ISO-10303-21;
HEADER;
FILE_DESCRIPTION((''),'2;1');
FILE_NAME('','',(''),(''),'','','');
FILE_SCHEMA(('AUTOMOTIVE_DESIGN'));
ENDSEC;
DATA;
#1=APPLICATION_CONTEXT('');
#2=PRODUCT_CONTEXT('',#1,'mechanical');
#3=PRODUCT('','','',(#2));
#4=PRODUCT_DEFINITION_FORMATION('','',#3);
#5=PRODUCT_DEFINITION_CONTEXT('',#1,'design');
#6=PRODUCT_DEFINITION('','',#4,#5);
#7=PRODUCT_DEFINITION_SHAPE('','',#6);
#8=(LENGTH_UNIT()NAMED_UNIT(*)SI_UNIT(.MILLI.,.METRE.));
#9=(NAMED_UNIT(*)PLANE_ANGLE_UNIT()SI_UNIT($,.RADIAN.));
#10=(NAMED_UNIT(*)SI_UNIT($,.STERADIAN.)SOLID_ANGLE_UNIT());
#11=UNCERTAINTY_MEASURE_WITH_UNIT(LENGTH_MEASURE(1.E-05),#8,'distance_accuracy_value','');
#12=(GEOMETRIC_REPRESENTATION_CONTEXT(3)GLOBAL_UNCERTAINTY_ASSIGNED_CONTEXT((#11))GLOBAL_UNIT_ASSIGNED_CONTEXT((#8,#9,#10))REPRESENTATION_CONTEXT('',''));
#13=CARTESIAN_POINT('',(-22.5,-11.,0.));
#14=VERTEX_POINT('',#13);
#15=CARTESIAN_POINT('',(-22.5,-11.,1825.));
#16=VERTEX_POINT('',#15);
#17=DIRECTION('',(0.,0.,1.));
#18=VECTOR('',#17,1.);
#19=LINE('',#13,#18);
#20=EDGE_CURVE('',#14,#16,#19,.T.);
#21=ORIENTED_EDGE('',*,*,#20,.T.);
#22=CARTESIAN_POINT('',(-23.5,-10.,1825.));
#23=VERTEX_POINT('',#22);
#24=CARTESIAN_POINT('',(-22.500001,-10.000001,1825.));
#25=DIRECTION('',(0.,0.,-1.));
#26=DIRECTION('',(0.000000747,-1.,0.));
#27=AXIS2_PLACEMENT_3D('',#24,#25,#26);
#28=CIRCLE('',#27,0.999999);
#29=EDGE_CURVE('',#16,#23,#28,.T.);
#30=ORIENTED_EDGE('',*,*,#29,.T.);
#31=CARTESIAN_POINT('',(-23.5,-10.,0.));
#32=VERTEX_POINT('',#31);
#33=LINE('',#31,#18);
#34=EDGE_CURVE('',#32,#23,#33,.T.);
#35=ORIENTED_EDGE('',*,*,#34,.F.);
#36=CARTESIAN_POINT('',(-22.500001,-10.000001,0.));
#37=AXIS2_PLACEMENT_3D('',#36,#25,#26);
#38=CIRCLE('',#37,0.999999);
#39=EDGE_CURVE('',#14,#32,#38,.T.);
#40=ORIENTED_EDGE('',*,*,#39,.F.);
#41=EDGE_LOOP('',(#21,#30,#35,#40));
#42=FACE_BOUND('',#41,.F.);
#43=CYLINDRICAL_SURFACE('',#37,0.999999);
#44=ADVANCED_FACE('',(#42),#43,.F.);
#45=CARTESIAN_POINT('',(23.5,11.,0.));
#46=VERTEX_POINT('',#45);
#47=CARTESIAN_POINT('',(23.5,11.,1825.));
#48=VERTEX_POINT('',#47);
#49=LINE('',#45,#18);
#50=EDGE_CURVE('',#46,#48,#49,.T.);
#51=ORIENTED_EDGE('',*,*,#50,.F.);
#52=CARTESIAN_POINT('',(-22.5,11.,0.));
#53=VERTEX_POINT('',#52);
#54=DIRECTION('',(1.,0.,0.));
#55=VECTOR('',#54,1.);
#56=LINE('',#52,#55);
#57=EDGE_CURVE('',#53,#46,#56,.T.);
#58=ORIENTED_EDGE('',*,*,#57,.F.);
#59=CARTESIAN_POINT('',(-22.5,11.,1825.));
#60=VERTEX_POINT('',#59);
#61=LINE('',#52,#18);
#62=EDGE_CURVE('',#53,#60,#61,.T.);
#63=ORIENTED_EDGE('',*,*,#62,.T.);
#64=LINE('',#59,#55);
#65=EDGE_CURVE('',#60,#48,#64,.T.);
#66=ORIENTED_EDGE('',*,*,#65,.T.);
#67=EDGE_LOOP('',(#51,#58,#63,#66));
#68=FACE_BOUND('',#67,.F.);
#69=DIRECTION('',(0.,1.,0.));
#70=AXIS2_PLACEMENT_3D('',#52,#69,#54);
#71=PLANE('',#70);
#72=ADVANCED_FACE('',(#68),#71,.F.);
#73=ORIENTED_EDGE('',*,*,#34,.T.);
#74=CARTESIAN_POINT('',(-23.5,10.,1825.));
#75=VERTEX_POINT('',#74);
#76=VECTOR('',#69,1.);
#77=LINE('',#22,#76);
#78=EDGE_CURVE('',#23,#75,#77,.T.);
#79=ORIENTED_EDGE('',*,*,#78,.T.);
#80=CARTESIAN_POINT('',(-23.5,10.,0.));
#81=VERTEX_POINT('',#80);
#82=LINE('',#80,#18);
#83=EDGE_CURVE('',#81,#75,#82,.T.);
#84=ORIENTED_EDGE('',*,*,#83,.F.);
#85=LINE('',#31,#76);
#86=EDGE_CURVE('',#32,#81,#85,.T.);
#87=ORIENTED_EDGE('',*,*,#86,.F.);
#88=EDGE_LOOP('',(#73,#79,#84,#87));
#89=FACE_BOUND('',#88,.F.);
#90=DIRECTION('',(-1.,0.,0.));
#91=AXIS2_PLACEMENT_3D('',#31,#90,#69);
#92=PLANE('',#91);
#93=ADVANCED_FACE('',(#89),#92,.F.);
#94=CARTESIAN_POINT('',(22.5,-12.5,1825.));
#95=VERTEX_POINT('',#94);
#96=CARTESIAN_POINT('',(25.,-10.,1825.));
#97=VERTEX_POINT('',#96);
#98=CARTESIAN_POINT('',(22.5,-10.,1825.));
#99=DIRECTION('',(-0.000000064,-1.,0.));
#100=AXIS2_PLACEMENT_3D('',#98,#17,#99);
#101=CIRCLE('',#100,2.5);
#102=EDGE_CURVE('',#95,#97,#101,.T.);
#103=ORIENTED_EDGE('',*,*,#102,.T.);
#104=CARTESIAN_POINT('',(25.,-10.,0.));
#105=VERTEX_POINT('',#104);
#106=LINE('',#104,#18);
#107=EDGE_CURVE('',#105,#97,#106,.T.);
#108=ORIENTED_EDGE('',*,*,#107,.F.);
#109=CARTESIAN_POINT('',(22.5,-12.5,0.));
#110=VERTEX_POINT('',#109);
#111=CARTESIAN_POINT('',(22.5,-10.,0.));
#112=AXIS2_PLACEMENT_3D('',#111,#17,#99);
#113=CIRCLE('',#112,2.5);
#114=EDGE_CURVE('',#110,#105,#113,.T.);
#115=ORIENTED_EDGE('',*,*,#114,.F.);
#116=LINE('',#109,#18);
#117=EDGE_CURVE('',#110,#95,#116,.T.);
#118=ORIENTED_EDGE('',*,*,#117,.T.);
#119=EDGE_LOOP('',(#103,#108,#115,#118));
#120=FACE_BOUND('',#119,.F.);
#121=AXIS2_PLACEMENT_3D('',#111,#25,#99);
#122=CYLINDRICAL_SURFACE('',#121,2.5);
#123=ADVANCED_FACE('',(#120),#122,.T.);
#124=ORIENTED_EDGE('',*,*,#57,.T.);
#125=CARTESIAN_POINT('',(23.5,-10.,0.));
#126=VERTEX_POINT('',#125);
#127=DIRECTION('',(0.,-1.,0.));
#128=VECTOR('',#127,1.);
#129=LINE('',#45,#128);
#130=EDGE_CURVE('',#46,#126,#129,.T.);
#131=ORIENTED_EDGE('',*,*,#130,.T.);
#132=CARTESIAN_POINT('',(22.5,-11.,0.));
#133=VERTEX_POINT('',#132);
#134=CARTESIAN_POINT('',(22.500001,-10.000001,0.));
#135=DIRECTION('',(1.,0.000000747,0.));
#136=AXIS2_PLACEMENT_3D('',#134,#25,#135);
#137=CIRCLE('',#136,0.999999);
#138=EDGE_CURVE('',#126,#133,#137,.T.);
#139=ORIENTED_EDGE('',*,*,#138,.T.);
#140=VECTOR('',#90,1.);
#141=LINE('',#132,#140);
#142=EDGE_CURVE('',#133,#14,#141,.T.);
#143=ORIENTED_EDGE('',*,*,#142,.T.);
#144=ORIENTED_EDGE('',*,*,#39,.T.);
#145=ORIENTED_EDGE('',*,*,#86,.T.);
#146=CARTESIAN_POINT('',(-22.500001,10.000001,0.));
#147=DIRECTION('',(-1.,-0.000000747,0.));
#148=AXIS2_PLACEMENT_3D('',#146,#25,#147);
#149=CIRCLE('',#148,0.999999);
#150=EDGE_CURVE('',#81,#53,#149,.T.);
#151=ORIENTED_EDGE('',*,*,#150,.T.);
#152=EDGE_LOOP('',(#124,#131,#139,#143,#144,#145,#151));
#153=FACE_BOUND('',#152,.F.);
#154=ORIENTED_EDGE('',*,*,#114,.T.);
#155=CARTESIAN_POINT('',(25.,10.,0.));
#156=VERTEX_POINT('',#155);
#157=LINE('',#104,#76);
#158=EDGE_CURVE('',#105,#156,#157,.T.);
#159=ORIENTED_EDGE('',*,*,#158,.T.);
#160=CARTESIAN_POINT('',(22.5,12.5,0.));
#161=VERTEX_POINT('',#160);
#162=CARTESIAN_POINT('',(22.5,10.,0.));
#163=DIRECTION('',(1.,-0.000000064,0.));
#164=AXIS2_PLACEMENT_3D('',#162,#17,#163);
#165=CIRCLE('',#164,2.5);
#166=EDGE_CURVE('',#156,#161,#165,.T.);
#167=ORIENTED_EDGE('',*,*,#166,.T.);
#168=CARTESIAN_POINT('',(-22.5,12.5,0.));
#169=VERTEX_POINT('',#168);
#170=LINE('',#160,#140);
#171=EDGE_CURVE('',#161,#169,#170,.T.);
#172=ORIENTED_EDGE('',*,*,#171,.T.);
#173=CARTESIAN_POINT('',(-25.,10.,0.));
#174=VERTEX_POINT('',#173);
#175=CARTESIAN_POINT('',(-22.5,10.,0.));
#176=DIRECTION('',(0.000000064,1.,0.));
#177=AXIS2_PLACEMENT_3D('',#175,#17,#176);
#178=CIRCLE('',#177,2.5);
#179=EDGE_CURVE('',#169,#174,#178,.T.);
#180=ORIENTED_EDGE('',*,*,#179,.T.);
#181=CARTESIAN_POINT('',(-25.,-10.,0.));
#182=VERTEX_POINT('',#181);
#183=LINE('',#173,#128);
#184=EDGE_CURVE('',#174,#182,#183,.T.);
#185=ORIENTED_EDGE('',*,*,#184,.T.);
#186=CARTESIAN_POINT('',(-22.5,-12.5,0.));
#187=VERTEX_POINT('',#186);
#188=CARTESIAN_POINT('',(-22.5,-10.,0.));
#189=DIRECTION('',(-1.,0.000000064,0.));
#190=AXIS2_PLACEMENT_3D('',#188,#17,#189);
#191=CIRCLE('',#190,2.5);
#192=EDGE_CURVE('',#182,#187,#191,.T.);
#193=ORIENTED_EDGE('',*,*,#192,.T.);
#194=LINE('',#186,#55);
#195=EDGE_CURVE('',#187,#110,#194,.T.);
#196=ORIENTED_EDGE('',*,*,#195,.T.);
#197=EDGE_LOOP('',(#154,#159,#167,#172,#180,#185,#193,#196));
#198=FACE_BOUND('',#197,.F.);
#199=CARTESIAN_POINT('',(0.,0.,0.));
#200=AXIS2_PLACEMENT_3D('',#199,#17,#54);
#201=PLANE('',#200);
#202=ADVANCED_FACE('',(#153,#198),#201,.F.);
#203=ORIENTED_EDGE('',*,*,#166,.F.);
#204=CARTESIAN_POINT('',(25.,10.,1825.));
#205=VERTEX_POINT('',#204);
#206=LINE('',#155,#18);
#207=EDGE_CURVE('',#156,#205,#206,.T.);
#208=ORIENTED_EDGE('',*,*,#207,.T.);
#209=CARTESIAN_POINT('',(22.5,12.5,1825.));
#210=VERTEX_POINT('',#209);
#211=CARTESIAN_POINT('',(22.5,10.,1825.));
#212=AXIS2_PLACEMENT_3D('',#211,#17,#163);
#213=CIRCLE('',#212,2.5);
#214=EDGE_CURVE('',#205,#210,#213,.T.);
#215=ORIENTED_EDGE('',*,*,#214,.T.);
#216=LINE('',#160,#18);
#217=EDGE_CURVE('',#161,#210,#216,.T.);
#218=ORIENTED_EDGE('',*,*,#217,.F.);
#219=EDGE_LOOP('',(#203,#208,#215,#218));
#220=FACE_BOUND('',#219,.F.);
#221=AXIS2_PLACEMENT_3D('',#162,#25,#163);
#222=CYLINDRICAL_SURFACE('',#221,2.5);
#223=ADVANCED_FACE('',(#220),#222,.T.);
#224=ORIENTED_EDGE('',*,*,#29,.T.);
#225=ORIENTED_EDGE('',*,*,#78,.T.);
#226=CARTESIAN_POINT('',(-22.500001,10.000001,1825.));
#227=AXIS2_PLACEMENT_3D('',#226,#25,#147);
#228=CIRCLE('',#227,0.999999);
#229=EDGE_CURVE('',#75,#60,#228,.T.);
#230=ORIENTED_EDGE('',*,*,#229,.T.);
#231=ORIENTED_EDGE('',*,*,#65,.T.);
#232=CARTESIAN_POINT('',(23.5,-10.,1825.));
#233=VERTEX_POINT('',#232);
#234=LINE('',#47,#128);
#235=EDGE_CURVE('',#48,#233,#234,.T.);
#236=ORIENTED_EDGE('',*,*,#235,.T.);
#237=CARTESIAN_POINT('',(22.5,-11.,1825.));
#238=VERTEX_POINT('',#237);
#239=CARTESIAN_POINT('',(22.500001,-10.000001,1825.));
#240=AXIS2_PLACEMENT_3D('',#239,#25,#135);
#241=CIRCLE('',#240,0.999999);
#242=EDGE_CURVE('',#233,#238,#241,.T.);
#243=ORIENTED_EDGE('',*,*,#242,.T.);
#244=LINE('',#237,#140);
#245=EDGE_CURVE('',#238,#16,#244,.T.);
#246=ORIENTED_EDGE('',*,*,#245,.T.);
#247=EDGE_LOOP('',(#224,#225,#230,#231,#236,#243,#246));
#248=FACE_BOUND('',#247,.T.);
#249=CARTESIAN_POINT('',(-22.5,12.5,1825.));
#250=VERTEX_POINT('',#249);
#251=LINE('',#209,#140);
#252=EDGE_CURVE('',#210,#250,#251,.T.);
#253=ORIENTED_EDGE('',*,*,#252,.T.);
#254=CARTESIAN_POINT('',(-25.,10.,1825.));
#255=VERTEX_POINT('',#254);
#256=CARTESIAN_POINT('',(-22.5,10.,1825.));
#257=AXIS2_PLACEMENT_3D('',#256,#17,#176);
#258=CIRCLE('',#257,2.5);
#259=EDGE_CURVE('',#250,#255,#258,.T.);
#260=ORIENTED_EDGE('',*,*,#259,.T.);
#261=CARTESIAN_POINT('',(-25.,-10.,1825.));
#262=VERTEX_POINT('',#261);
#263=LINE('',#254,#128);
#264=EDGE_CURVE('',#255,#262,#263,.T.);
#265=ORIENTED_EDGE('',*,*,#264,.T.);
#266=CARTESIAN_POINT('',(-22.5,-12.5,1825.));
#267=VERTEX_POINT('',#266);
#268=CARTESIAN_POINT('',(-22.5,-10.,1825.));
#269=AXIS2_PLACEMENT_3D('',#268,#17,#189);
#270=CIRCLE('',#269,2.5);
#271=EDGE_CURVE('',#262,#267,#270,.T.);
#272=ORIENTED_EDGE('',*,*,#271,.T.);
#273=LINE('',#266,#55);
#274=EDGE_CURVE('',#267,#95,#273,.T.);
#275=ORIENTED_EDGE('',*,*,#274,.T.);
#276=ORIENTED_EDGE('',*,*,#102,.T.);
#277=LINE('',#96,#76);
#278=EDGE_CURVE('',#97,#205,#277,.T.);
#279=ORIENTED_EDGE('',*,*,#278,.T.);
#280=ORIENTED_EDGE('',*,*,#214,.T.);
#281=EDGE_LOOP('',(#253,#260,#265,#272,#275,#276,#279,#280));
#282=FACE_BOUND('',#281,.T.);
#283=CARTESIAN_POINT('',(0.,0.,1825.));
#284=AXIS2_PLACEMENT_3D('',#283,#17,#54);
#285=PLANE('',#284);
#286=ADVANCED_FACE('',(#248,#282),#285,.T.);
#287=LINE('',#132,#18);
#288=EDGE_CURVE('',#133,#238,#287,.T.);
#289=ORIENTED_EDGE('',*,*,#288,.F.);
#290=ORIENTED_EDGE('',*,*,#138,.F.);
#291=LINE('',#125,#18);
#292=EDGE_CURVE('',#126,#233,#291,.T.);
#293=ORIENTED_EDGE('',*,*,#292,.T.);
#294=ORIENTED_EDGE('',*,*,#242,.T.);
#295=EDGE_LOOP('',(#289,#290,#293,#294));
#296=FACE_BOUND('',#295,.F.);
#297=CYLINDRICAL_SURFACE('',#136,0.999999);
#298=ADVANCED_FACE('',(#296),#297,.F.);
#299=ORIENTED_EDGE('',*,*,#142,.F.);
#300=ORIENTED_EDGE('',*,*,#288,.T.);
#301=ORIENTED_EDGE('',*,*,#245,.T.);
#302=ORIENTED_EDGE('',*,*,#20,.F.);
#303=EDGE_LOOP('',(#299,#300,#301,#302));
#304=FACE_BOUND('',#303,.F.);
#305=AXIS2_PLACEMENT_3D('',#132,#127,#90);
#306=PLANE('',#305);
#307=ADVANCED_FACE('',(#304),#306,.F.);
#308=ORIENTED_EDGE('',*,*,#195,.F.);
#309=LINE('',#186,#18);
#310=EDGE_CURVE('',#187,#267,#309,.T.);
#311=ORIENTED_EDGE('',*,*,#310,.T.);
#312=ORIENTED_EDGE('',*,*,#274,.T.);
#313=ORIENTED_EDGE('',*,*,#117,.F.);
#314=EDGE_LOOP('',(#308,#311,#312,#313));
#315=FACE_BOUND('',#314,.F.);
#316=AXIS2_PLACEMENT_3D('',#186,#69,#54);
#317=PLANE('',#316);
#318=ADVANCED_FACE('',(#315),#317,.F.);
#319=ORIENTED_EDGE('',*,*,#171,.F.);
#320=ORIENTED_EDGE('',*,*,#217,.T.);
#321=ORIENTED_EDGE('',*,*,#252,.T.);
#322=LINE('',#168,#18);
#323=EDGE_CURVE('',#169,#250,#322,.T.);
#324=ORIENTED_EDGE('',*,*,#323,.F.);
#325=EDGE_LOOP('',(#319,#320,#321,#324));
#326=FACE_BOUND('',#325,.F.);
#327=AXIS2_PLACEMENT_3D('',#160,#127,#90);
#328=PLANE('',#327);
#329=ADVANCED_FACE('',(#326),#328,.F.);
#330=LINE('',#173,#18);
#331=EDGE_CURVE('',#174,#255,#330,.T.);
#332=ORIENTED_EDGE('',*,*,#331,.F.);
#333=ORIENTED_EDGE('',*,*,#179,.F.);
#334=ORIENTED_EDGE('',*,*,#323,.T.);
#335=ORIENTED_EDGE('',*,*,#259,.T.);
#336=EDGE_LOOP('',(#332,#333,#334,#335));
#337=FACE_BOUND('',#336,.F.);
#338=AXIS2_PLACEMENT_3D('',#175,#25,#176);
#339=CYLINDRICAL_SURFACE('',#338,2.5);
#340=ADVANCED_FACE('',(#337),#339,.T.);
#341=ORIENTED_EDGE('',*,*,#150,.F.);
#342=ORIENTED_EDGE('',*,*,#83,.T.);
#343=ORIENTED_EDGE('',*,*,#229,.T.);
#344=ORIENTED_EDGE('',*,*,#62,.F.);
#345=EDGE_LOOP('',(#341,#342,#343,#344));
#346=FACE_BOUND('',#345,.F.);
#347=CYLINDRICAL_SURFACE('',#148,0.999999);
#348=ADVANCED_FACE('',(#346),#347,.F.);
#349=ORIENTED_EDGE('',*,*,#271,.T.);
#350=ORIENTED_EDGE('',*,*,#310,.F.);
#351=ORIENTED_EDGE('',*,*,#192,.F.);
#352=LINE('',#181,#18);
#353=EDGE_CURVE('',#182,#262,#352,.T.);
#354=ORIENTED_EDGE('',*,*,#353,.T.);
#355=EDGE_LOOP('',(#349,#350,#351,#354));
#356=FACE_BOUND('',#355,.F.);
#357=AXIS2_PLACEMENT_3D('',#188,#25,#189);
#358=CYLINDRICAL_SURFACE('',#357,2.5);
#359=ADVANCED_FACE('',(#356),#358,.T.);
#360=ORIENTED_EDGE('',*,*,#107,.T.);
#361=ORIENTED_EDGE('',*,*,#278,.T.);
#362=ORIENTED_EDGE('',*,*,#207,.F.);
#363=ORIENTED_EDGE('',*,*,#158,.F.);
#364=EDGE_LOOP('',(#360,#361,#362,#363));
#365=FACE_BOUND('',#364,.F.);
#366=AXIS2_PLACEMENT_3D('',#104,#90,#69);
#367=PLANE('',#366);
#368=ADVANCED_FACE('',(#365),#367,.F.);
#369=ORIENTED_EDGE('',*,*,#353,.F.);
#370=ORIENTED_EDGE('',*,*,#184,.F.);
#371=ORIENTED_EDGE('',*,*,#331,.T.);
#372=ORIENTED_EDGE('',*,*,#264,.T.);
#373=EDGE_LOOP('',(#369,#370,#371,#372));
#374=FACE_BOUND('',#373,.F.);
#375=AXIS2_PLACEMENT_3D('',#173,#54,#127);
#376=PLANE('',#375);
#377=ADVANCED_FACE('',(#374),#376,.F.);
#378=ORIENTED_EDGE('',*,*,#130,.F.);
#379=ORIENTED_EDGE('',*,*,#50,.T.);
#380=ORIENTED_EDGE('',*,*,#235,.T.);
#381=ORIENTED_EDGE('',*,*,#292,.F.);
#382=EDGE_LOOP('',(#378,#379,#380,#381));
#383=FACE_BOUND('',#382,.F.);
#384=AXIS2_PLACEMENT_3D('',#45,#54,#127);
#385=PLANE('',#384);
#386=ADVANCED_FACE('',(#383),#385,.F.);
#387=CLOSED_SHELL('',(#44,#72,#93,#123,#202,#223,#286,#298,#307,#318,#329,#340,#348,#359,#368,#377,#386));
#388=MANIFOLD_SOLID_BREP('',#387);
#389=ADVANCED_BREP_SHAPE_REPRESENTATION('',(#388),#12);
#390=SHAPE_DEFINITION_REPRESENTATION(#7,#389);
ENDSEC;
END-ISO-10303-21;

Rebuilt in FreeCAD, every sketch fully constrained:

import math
import FreeCAD as App
import Part
import Sketcher

doc = App.newDocument("Part")
body = doc.addObject("PartDesign::Body", "Body")

# Sketch on XY plane
sketch1 = body.newObject("Sketcher::SketchObject", "Sketch")
sketch1.AttachmentSupport = (doc.getObject("XY_Plane"), [""])
sketch1.MapMode = "FlatFace"
sketch1.addGeometry([
    Part.ArcOfCircle(Part.Circle(App.Vector(22.5, 10, 0), App.Vector(0, 0, 1), 2.5), math.radians(0), math.radians(90)),  # 0
    Part.LineSegment(App.Vector(22.5, 12.5, 0), App.Vector(-22.5, 12.5, 0)),  # 1
    Part.ArcOfCircle(Part.Circle(App.Vector(-22.5, 10, 0), App.Vector(0, 0, 1), 2.5), math.radians(90), math.radians(180)),  # 2
    Part.LineSegment(App.Vector(-25, 10, 0), App.Vector(-25, -10, 0)),  # 3
    Part.ArcOfCircle(Part.Circle(App.Vector(-22.5, -10, 0), App.Vector(0, 0, 1), 2.5), math.radians(180), math.radians(270)),  # 4
    Part.LineSegment(App.Vector(-22.5, -12.5, 0), App.Vector(22.5, -12.5, 0)),  # 5
    Part.ArcOfCircle(Part.Circle(App.Vector(22.5, -10, 0), App.Vector(0, 0, 1), 2.5), math.radians(-90), math.radians(0)),  # 6
    Part.LineSegment(App.Vector(25, -10, 0), App.Vector(25, 10, 0)),  # 7
    Part.LineSegment(App.Vector(23.5, 11, 0), App.Vector(23.5, -10, 0)),  # 8
    Part.ArcOfCircle(Part.Circle(App.Vector(22.5, -10, 0), App.Vector(0, 0, 1), 1), math.radians(-90), math.radians(0)),  # 9
    Part.LineSegment(App.Vector(22.5, -11, 0), App.Vector(-22.5, -11, 0)),  # 10
    Part.ArcOfCircle(Part.Circle(App.Vector(-22.5, -10, 0), App.Vector(0, 0, 1), 1), math.radians(180), math.radians(270)),  # 11
    Part.LineSegment(App.Vector(-23.5, -10, 0), App.Vector(-23.5, 10, 0)),  # 12
    Part.ArcOfCircle(Part.Circle(App.Vector(-22.5, 10, 0), App.Vector(0, 0, 1), 1), math.radians(90), math.radians(180)),  # 13
    Part.LineSegment(App.Vector(-22.5, 11, 0), App.Vector(23.5, 11, 0)),  # 14
], False)
sketch1.addConstraint([
    Sketcher.Constraint("Tangent", 0, 2, 1, 1),
    Sketcher.Constraint("Tangent", 1, 2, 2, 1),
    Sketcher.Constraint("Tangent", 2, 2, 3, 1),
    Sketcher.Constraint("Tangent", 3, 2, 4, 1),
    Sketcher.Constraint("Tangent", 4, 2, 5, 1),
    Sketcher.Constraint("Tangent", 5, 2, 6, 1),
    Sketcher.Constraint("Tangent", 6, 2, 7, 1),
    Sketcher.Constraint("Tangent", 7, 2, 0, 1),
    Sketcher.Constraint("Tangent", 8, 2, 9, 2),
    Sketcher.Constraint("Tangent", 9, 1, 10, 1),
    Sketcher.Constraint("Tangent", 10, 2, 11, 2),
    Sketcher.Constraint("Tangent", 11, 1, 12, 1),
    Sketcher.Constraint("Tangent", 12, 2, 13, 2),
    Sketcher.Constraint("Tangent", 13, 1, 14, 1),
    Sketcher.Constraint("Coincident", 14, 2, 8, 1),
    Sketcher.Constraint("Horizontal", 1),
    Sketcher.Constraint("Vertical", 3),
    Sketcher.Constraint("Horizontal", 5),
    Sketcher.Constraint("Vertical", 7),
    Sketcher.Constraint("Vertical", 8),
    Sketcher.Constraint("Horizontal", 10),
    Sketcher.Constraint("Vertical", 12),
    Sketcher.Constraint("Horizontal", 14),
    Sketcher.Constraint("Coincident", 9, 3, 6, 3),
    Sketcher.Constraint("Coincident", 11, 3, 4, 3),
    Sketcher.Constraint("Coincident", 13, 3, 2, 3),
    Sketcher.Constraint("Equal", 0, 2),
    Sketcher.Constraint("Equal", 2, 4),
    Sketcher.Constraint("Equal", 4, 6),
    Sketcher.Constraint("Symmetric", 0, 3, 4, 3, -1, 1),
    Sketcher.Constraint("Radius", 9, 0.999999),
    Sketcher.Constraint("Radius", 0, 2.5),
    Sketcher.Constraint("DistanceX", 1, 2, 1, 1, 45.0),
    Sketcher.Constraint("DistanceY", 3, 2, 3, 1, 20.0),
])
pad1 = body.newObject("PartDesign::Pad", "Pad")
pad1.Profile = sketch1
pad1.Length = 1825

doc.recompute()
